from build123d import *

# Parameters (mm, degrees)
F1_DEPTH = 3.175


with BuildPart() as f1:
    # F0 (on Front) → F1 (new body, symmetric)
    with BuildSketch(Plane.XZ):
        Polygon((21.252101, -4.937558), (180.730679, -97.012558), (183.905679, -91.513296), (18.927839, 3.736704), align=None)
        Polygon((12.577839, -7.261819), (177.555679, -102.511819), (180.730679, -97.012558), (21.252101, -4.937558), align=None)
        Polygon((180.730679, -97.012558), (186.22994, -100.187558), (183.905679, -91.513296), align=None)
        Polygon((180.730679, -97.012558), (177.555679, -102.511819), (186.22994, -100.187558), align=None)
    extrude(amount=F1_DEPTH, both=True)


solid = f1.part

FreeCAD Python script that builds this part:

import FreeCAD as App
import Part
import Sketcher
Q = App.Units.Quantity


def add_polygon(sketch, points):
    """Adds a closed chain of lines whose ends are joined by coincident constraints."""
    first, n = sketch.GeometryCount, len(points)
    for a, b in zip(points, points[1:] + points[:1]):
        sketch.addGeometry(Part.LineSegment(App.Vector(*a, 0), App.Vector(*b, 0)), False)
    for i in range(n):
        sketch.addConstraint(Sketcher.Constraint("Coincident", first + i, 2, first + (i + 1) % n, 1))

doc = App.newDocument("Part")
body = doc.addObject("PartDesign::Body", "Body")

# Sketch on XZ plane
sketch1 = body.newObject("Sketcher::SketchObject", "Sketch")
sketch1.AttachmentSupport = (doc.getObject("XZ_Plane"), [""])
sketch1.MapMode = "FlatFace"
add_polygon(sketch1, [(184, -92), (19, 4), (21, -5), (13, -7), (178, -103), (186, -100)])  # lines 0-5
sketch1.addConstraint([
    Sketcher.Constraint("Perpendicular", 1, 2),
    Sketcher.Constraint("Parallel", 0, 3),
    Sketcher.Constraint("Parallel", 2, 4),
    Sketcher.Constraint("Perpendicular", 4, 5),
    Sketcher.Constraint("Equal", 1, 2),
    Sketcher.Constraint("Equal", 0, 3),
    Sketcher.Constraint("Angle", 0, Q("150 deg")),
    Sketcher.Constraint("Angle", 1, Q("-74.999997 deg")),
    Sketcher.Constraint("Distance", 0, Q("7.5 in")),
    Sketcher.Constraint("DistanceX", 2, 2, 0, 2, Q("0.25 in")),
    Sketcher.Constraint("DistanceX", -1, 1, 1, 2, Q("21.252101 mm")),
    Sketcher.Constraint("DistanceY", 2, 2, -1, 1, Q("7.261819 mm")),
])
pad1 = body.newObject("PartDesign::Pad", "Pad")
pad1.Profile = sketch1
pad1.Length = Q("0.25 in")
pad1.Midplane = True

doc.recompute()
